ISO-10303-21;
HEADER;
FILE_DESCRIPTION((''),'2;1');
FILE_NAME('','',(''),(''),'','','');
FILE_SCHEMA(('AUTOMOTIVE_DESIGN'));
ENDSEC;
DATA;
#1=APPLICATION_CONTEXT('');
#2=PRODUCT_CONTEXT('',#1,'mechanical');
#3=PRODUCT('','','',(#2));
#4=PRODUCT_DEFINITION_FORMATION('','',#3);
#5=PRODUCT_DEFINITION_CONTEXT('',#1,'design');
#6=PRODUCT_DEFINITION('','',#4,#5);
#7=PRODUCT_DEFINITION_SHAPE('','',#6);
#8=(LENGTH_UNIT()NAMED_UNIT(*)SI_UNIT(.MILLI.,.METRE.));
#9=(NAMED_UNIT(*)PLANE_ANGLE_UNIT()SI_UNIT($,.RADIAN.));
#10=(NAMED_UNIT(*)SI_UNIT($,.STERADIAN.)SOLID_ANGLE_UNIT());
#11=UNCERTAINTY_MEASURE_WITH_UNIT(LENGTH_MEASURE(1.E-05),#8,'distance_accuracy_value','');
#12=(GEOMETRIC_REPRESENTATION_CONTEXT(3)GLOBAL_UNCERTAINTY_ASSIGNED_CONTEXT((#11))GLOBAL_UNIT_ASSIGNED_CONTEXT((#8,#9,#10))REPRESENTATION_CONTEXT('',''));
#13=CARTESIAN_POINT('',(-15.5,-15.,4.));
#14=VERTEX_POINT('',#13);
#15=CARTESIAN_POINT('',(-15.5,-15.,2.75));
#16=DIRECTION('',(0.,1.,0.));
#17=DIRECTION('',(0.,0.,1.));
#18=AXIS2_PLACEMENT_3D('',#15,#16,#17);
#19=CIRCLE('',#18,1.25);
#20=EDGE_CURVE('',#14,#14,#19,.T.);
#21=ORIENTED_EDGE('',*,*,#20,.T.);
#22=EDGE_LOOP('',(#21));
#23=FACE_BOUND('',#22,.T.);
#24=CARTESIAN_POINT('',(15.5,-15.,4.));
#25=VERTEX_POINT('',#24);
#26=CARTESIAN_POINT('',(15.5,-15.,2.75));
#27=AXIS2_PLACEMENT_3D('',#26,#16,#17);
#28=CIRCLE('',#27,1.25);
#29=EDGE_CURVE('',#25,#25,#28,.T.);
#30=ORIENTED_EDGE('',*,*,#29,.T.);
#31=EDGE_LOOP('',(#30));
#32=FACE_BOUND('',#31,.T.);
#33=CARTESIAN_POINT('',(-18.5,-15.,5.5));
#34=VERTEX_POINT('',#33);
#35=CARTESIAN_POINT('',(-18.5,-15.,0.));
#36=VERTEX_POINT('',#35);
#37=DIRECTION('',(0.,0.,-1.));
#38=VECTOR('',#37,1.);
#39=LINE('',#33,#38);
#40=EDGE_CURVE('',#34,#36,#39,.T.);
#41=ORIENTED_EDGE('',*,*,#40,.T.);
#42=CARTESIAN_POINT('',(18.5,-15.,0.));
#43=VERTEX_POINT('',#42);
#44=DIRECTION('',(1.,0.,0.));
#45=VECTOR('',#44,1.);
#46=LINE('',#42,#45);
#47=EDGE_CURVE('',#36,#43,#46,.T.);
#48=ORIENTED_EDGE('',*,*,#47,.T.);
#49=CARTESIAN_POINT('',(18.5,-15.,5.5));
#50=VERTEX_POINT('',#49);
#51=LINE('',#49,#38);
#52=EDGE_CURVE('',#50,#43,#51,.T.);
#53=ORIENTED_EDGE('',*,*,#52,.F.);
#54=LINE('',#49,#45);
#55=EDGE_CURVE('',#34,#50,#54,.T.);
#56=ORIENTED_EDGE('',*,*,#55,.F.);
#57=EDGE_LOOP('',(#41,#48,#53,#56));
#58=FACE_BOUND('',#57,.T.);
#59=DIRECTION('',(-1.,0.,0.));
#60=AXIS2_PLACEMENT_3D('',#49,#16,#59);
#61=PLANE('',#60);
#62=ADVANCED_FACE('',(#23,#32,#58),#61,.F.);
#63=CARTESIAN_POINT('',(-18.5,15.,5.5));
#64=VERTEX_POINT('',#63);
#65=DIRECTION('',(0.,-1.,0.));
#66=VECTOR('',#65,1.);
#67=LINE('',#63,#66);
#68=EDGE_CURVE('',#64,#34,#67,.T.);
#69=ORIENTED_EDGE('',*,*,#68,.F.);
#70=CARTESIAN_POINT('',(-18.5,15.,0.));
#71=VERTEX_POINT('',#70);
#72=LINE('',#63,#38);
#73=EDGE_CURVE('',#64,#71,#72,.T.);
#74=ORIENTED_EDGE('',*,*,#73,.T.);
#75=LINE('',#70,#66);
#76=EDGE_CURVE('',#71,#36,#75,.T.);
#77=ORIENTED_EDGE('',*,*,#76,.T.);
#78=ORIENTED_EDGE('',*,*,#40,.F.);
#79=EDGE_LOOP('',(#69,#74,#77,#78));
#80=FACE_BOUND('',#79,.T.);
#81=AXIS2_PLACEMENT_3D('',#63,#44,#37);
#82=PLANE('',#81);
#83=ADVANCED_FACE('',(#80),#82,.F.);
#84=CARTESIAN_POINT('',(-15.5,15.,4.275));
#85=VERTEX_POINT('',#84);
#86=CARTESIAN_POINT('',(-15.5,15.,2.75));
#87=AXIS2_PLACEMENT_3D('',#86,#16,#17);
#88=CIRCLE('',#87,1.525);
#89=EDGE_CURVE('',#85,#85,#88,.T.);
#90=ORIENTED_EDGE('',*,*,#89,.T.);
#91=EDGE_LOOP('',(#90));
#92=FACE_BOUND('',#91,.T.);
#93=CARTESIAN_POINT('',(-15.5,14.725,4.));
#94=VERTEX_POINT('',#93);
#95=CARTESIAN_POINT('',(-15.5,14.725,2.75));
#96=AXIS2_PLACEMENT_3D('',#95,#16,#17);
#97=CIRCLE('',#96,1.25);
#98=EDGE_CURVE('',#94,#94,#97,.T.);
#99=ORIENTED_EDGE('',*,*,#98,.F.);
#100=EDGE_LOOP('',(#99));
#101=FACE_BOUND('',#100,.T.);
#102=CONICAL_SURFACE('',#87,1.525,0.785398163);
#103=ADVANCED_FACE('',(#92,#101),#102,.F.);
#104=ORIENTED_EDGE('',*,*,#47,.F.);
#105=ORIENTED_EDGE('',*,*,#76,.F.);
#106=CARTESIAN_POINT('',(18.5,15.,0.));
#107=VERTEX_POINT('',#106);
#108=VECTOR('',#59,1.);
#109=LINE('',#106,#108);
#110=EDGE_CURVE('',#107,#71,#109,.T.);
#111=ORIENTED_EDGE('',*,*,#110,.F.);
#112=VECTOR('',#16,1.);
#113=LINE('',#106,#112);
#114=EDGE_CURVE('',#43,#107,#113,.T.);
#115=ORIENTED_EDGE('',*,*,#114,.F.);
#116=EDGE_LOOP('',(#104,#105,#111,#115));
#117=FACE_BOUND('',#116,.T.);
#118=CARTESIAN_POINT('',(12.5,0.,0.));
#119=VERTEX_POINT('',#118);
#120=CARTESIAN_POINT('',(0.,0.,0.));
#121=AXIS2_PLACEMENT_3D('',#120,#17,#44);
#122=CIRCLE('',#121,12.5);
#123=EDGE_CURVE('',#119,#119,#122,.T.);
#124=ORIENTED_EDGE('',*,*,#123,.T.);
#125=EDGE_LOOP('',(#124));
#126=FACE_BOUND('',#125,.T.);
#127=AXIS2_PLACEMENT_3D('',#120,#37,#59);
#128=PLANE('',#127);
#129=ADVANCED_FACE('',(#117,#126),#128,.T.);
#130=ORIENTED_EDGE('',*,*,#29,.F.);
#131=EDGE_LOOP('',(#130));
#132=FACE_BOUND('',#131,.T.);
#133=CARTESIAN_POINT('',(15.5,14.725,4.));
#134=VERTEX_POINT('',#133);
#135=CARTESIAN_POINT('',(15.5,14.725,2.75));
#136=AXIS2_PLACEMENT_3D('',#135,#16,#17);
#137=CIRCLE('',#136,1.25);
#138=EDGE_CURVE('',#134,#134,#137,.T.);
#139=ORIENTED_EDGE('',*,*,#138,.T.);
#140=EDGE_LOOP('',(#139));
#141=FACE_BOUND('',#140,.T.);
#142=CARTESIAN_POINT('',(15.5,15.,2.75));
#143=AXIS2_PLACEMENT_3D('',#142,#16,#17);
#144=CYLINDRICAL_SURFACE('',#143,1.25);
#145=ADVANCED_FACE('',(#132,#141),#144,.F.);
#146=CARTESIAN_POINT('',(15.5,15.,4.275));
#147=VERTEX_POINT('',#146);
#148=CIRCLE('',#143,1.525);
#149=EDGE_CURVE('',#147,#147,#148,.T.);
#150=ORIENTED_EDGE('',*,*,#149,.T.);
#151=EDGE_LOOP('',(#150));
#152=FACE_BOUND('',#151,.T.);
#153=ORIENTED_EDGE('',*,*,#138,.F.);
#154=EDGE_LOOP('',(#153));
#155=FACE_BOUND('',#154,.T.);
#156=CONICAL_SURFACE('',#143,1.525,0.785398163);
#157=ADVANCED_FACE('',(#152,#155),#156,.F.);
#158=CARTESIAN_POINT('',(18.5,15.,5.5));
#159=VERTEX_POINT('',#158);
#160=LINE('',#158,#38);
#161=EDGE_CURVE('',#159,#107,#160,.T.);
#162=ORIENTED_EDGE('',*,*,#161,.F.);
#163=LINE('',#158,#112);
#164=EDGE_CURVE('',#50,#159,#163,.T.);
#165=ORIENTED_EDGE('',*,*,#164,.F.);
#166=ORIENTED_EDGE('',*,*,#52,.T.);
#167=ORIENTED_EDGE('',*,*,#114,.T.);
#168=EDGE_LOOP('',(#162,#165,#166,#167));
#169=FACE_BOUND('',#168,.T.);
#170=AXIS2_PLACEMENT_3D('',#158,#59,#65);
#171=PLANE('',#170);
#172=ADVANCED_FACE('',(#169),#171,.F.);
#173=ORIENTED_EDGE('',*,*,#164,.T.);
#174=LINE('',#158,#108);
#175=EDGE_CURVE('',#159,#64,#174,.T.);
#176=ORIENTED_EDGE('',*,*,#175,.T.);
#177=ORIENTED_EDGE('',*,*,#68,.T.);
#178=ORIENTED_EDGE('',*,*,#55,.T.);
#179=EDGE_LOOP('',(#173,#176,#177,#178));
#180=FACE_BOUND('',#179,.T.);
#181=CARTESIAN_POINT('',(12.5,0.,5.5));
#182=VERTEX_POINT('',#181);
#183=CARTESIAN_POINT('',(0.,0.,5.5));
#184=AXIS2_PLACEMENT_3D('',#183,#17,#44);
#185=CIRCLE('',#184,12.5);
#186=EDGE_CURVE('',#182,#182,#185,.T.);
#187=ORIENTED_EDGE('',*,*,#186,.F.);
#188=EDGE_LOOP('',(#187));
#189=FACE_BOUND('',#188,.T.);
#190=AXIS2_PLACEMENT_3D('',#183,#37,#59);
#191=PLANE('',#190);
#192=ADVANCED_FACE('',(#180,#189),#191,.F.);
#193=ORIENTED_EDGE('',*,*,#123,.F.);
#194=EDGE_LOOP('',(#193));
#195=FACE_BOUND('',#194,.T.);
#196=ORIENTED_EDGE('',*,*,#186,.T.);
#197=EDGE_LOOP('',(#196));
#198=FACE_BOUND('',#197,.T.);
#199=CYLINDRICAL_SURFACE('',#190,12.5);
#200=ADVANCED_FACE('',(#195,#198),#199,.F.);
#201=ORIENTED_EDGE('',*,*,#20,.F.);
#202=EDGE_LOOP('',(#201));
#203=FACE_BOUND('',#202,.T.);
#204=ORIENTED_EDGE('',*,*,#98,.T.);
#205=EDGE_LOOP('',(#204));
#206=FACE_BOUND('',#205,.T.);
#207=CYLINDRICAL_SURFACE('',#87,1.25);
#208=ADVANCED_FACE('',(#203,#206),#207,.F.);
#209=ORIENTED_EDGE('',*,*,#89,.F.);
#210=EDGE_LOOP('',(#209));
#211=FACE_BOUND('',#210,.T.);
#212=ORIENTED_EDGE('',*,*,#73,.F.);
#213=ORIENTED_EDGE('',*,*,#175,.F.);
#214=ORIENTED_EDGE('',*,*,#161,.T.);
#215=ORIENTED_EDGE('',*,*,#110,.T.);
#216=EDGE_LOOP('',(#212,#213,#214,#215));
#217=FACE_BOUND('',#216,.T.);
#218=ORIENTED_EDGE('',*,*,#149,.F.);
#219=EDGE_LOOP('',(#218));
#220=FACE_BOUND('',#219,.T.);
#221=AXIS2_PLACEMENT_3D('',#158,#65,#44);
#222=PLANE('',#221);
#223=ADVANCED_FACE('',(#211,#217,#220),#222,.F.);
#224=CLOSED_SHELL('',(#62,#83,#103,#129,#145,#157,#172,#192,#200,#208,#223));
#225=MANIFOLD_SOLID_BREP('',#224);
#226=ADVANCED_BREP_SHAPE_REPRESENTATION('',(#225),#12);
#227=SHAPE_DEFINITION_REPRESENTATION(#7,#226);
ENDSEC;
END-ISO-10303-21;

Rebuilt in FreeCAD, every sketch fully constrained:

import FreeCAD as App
import Part
import Sketcher


def add_polygon(sketch, points):
    """Adds a closed chain of lines whose ends are joined by coincident constraints."""
    first, n = sketch.GeometryCount, len(points)
    for a, b in zip(points, points[1:] + points[:1]):
        sketch.addGeometry(Part.LineSegment(App.Vector(*a, 0), App.Vector(*b, 0)), False)
    for i in range(n):
        sketch.addConstraint(Sketcher.Constraint("Coincident", first + i, 2, first + (i + 1) % n, 1))

doc = App.newDocument("Part")
body = doc.addObject("PartDesign::Body", "Body")

# Sketch on XY plane
sketch1 = body.newObject("Sketcher::SketchObject", "Sketch")
sketch1.AttachmentSupport = (doc.getObject("XY_Plane"), [""])
sketch1.MapMode = "FlatFace"
add_polygon(sketch1, [(-18.5, 15), (-18.5, -15), (18.5, -15), (18.5, 15)])  # lines 0-3
sketch1.addGeometry(Part.Circle(App.Vector(0, 0, 0), App.Vector(0, 0, 1), 12.5), False)  # 4
sketch1.addConstraint([
    Sketcher.Constraint("Vertical", 0),
    Sketcher.Constraint("Horizontal", 1),
    Sketcher.Constraint("Vertical", 2),
    Sketcher.Constraint("Horizontal", 3),
    Sketcher.Constraint("Coincident", 4, 3, -1, 1),
    Sketcher.Constraint("Symmetric", 0, 2, 2, 2, -1, 1),
    Sketcher.Constraint("Diameter", 4, 25.0),
    Sketcher.Constraint("DistanceX", 1, 1, 1, 2, 37.0),
    Sketcher.Constraint("DistanceY", 0, 2, 0, 1, 30.0),
])
pad1 = body.newObject("PartDesign::Pad", "Pad")
pad1.Profile = sketch1
pad1.Length = 5.5

# Sketch on XZ plane
sketch2 = body.newObject("Sketcher::SketchObject", "Sketch001")
sketch2.AttachmentSupport = (doc.getObject("XZ_Plane"), [""])
sketch2.MapMode = "FlatFace"
sketch2.AttachmentOffset = App.Placement(App.Vector(0, 0, -15), App.Rotation())
sketch2.addGeometry([
    Part.Circle(App.Vector(-15.5, 2.75, 0), App.Vector(0, 0, 1), 1.25),
    Part.Circle(App.Vector(15.5, 2.75, 0), App.Vector(0, 0, 1), 1.25),
], False)
sketch2.addConstraint([
    Sketcher.Constraint("Equal", 0, 1),
    Sketcher.Constraint("Symmetric", 0, 3, 1, 3, -2),
    Sketcher.Constraint("Diameter", 0, 2.5),
    Sketcher.Constraint("DistanceX", 0, 3, 1, 3, 31.0),
    Sketcher.Constraint("DistanceY", -1, 1, 0, 3, 2.75),
])
doc.recompute()
hole = body.newObject("PartDesign::Hole", "Hole")
hole.Profile = sketch2
hole.ThreadType = "None"
hole.Diameter = 2.5
hole.DepthType = "ThroughAll"
hole.HoleCutType = "Countersink"
hole.HoleCutDiameter = 3.05
hole.HoleCutCountersinkAngle = 90
hole.Reversed = True

doc.recompute()
